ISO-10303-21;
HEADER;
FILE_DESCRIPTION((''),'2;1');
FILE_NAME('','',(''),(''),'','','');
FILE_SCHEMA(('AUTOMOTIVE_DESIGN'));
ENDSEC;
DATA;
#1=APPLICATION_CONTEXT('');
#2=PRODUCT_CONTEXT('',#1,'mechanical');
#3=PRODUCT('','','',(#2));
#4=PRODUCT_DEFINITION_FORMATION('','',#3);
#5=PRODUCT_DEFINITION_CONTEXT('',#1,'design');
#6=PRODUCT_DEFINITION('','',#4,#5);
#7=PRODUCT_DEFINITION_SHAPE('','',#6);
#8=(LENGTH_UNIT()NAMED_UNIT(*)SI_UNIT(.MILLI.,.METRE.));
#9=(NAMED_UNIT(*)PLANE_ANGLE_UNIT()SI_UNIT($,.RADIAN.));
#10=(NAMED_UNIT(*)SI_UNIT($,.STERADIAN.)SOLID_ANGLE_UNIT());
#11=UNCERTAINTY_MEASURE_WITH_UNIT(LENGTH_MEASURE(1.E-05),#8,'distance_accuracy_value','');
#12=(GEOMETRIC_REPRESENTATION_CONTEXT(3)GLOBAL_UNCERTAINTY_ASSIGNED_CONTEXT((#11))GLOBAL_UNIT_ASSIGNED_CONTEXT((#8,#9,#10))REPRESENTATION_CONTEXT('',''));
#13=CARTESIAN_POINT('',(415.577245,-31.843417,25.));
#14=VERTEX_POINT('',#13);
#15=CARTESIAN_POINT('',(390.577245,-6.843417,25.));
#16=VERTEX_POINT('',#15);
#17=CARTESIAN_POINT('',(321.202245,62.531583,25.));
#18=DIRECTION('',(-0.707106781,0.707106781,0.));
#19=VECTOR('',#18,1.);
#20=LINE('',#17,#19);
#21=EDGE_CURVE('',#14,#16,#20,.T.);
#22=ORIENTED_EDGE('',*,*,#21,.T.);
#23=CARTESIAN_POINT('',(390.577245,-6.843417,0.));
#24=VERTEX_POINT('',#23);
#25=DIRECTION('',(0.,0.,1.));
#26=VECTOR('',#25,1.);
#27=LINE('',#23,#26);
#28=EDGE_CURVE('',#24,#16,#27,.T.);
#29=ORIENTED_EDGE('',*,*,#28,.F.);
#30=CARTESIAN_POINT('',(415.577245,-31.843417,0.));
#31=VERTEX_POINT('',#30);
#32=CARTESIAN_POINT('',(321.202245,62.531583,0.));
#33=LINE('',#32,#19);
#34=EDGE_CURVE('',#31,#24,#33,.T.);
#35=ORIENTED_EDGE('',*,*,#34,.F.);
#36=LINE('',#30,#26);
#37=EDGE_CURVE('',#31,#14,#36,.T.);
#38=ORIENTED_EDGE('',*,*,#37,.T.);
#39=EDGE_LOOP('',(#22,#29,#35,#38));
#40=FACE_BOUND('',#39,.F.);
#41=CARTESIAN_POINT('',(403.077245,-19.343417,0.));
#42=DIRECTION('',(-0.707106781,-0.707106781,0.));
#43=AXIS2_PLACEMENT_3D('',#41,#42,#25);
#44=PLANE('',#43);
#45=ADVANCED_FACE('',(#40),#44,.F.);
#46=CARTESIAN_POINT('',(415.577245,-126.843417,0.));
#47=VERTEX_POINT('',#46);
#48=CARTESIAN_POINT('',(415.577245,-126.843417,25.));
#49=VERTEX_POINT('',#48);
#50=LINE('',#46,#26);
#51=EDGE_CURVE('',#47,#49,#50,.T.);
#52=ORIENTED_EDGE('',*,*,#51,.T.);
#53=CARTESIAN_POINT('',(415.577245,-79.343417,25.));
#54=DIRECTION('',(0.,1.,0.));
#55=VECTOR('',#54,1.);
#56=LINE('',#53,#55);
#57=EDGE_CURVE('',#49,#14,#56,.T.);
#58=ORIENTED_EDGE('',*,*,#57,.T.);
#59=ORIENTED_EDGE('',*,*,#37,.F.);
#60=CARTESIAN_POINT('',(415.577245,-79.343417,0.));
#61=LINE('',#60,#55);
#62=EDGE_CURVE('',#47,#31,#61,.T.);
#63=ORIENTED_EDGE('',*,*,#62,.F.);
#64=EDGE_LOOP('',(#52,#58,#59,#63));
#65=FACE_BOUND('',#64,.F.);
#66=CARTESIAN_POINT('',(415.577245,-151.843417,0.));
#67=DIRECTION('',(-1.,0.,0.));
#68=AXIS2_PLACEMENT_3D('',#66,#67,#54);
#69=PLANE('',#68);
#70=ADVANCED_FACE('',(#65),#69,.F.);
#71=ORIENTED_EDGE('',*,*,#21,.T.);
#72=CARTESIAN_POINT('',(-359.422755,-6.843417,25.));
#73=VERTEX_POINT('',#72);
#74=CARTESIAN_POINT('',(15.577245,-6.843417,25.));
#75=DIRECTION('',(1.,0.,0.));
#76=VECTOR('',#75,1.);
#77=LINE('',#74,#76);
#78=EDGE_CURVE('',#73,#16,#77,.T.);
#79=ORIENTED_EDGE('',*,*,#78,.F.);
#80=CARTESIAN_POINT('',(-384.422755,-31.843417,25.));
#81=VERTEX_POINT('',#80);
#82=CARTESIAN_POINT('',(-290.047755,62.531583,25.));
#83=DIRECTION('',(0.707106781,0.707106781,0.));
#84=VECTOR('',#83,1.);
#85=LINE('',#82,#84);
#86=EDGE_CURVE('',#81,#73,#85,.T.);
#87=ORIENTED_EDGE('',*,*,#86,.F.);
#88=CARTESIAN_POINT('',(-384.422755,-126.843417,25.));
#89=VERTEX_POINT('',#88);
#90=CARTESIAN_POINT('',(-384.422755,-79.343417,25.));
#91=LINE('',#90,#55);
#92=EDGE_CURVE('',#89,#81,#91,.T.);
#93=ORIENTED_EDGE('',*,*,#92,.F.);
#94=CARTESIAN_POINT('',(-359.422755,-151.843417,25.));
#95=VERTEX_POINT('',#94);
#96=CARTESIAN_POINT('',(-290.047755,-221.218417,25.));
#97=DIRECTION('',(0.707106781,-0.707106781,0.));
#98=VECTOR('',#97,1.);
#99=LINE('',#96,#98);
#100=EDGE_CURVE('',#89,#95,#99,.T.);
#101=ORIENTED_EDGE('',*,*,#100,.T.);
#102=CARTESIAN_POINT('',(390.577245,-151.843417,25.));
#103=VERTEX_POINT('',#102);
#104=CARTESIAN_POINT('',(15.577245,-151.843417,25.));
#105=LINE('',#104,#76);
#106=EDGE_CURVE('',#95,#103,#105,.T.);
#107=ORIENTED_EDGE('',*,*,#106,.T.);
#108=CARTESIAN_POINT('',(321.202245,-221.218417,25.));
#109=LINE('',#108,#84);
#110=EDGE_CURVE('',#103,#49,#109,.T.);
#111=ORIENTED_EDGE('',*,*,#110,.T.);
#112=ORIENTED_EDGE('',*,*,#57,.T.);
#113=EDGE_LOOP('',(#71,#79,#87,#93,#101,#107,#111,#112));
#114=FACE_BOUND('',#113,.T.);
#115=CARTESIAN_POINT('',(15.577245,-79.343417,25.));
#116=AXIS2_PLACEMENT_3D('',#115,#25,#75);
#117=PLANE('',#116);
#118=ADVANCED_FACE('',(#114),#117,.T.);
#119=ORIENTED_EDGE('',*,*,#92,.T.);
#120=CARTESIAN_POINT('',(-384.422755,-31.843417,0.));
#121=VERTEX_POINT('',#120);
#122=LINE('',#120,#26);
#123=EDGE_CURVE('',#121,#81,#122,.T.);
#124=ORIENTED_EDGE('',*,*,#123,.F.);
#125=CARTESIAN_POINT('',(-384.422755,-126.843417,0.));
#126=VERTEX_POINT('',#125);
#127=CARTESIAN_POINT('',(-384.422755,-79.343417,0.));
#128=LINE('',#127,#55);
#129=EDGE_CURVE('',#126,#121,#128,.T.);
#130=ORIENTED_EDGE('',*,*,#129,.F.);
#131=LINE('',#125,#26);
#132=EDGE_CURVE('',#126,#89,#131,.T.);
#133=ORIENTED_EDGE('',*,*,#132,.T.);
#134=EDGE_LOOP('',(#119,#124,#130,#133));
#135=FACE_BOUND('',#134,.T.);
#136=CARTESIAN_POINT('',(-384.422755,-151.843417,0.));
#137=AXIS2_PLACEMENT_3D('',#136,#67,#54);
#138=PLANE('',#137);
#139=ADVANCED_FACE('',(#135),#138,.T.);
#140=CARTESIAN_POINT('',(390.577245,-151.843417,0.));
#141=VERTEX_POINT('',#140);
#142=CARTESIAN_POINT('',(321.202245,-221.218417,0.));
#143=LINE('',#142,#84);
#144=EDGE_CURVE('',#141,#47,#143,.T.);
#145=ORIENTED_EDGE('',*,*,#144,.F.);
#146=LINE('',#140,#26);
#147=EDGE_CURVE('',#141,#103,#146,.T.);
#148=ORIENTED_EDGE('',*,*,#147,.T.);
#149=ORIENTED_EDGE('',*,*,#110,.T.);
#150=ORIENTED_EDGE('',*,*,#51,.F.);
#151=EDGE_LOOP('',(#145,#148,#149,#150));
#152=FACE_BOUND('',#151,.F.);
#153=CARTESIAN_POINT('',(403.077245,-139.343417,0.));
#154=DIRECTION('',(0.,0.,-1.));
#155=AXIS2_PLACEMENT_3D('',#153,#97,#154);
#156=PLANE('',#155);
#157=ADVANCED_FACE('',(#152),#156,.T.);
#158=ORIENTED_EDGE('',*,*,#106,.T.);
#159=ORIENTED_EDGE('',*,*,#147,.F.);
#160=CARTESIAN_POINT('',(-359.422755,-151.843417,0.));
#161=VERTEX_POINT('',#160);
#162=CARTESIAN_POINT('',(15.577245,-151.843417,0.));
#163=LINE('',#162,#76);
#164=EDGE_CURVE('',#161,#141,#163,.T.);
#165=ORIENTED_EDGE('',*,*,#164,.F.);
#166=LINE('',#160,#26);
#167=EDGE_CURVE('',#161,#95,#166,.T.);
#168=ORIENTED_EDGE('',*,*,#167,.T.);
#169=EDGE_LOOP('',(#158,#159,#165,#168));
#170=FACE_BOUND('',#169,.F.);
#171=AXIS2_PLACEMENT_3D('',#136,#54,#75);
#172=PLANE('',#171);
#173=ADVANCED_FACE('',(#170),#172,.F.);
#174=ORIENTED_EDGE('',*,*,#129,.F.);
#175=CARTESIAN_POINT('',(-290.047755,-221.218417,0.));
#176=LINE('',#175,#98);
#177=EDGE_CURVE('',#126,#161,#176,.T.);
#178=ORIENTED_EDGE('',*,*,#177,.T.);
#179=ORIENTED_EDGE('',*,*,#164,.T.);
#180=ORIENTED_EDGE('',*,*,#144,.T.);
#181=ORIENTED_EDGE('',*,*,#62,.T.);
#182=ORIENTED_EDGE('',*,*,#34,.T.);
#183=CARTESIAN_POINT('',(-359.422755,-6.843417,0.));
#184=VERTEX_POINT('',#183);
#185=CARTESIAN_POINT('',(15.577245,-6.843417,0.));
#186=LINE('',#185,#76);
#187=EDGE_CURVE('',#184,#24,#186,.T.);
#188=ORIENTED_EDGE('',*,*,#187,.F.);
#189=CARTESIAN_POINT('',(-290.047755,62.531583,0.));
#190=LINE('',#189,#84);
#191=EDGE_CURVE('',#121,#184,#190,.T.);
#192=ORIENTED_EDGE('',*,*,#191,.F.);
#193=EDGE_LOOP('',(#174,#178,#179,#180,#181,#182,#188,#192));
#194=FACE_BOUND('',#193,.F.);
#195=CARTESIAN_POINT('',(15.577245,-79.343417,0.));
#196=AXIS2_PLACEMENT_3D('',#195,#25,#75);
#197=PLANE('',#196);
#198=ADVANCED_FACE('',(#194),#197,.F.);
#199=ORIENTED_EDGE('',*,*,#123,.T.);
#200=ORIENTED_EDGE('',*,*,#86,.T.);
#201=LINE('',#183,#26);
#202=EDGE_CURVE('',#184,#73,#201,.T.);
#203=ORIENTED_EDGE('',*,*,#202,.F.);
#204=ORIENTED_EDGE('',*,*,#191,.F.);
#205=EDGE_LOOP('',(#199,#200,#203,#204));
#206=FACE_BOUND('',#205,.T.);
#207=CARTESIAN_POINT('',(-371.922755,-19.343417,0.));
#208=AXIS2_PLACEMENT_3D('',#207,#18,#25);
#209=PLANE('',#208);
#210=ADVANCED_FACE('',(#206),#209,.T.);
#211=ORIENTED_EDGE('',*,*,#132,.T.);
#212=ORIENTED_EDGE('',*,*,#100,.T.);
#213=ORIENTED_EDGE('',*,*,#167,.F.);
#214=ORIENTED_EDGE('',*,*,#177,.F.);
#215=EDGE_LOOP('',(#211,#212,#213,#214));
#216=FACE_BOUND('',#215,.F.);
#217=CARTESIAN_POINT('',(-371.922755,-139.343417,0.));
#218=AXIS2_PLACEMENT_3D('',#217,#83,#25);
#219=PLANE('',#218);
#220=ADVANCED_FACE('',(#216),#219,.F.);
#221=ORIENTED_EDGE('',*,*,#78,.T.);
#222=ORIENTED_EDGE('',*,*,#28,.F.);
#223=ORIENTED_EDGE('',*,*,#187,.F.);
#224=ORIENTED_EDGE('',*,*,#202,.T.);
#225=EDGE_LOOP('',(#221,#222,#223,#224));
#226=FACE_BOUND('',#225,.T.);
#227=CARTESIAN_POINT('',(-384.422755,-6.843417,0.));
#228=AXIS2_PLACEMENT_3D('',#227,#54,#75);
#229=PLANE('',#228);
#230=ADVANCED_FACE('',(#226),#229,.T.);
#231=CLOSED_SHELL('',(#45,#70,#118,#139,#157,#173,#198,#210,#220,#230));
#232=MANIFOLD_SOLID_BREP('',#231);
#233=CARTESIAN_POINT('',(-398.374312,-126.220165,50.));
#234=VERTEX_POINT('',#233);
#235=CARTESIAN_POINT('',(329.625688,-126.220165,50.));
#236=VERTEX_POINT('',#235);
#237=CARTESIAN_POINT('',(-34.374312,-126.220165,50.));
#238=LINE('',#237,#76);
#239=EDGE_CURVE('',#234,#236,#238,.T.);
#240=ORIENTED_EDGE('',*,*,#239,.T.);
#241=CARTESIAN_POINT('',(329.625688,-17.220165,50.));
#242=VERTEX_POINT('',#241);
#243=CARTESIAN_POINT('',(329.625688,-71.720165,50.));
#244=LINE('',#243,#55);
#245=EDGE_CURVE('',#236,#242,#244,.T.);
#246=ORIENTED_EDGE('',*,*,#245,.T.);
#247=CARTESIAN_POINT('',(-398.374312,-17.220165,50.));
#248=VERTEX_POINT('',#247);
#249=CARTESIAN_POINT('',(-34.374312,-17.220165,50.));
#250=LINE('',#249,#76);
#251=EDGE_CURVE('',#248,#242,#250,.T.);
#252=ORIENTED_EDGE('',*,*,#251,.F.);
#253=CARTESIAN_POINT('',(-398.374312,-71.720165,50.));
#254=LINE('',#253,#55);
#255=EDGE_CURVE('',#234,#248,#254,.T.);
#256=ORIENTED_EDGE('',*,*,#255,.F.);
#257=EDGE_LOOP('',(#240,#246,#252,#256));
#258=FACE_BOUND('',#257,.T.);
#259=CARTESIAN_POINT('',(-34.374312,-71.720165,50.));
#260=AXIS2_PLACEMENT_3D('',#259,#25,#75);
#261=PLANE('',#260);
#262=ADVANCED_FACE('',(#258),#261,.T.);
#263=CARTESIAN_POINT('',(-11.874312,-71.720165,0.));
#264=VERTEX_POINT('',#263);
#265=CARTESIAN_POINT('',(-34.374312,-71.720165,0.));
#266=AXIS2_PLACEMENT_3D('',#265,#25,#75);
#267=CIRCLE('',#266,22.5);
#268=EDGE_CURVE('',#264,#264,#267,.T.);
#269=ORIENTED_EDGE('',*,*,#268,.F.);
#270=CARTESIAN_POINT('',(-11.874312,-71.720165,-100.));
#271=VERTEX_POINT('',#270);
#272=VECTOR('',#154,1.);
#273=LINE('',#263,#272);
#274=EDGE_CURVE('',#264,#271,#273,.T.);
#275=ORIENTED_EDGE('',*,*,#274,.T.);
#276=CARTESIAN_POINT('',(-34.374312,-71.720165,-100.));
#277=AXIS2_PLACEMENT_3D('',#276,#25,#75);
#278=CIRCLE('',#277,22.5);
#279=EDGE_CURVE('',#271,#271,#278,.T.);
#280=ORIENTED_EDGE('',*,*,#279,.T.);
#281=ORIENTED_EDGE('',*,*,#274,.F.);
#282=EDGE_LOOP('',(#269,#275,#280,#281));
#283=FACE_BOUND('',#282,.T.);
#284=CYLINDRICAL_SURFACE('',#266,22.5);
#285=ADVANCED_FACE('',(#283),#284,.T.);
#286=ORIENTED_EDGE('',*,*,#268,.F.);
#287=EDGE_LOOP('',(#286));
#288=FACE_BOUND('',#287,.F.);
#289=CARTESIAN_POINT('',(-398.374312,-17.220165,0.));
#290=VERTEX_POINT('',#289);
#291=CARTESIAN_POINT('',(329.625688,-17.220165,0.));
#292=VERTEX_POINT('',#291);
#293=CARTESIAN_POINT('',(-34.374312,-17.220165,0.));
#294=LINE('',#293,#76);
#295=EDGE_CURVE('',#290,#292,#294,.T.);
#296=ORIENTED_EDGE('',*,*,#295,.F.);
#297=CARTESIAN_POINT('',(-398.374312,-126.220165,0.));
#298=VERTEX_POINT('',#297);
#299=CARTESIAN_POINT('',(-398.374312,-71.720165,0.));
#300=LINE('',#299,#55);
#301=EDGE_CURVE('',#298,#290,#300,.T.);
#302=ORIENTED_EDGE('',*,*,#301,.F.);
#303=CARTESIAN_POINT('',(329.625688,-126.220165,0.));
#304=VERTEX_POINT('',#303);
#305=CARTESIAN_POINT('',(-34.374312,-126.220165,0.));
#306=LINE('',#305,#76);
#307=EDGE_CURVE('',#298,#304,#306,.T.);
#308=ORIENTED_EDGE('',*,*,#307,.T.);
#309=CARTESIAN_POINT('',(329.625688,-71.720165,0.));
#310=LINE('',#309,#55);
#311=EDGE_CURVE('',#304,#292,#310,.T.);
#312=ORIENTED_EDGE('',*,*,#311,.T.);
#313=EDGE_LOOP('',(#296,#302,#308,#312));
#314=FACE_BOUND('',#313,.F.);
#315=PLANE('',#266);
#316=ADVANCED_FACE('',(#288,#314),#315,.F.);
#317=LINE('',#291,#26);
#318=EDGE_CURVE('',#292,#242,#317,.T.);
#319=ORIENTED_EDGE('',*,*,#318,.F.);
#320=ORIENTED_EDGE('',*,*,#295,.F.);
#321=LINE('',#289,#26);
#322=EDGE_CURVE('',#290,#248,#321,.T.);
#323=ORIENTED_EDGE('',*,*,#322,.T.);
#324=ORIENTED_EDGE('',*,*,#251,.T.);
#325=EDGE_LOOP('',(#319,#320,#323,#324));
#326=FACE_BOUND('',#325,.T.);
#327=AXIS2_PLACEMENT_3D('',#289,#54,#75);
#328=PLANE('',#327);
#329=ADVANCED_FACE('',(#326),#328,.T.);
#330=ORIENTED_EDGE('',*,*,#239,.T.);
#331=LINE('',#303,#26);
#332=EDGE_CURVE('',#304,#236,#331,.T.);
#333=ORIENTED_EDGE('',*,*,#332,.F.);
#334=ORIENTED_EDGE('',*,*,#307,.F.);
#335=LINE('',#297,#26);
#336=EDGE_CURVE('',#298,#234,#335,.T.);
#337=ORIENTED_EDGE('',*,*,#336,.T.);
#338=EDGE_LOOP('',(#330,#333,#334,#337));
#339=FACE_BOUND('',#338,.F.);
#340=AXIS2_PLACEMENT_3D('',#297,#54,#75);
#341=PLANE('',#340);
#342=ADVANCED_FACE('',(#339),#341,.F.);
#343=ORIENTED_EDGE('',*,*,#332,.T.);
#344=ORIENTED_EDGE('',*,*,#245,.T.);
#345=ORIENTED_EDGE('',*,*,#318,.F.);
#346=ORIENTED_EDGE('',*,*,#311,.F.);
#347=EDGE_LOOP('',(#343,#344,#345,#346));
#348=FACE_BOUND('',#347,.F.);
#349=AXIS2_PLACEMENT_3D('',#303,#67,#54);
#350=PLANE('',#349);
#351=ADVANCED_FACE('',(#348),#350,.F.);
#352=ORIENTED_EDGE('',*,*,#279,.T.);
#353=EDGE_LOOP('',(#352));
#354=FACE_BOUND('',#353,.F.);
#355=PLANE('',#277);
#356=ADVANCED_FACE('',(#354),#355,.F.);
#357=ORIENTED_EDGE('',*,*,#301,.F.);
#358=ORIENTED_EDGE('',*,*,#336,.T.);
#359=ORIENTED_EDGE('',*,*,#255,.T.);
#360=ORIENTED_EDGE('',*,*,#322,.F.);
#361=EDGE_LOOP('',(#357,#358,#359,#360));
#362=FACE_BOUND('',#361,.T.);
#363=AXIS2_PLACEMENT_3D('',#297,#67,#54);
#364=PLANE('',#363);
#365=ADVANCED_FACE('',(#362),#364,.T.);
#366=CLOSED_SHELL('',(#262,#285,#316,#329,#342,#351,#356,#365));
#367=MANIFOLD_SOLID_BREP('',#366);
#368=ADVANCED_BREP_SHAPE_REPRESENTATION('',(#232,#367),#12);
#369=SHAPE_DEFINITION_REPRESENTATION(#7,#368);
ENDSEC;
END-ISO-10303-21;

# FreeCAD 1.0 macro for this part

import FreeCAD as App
import Part
import Sketcher
from FreeCAD import Vector
Q = App.Units.Quantity


def edges_at(feature, points):
    """Names of the edges that pass closest to the given points."""
    edges = feature.Shape.Edges
    near = lambda p: min(range(len(edges)), key=lambda i: edges[i].distToShape(Part.Vertex(*p))[0])
    return sorted({f"Edge{near(p) + 1}" for p in points})


def add_polygon(sketch, points):
    """Adds a closed chain of lines whose ends are joined by coincident constraints."""
    first, n = sketch.GeometryCount, len(points)
    for a, b in zip(points, points[1:] + points[:1]):
        sketch.addGeometry(Part.LineSegment(App.Vector(*a, 0), App.Vector(*b, 0)), False)
    for i in range(n):
        sketch.addConstraint(Sketcher.Constraint("Coincident", first + i, 2, first + (i + 1) % n, 1))

doc = App.newDocument("Part")
body = doc.addObject("PartDesign::Body", "Body")

# Sketch on XY plane
sketch1 = doc.addObject("Sketcher::SketchObject", "Sketch")
body.addObject(sketch1)
sketch1.AttachmentSupport = (doc.XY_Plane, [""])
sketch1.MapMode = "FlatFace"
add_polygon(sketch1, [(-398, -17), (-398, -126), (330, -126), (330, -17)])  # lines 0-3
sketch1.addConstraint([
    Sketcher.Constraint("Vertical", 0),
    Sketcher.Constraint("Horizontal", 1),
    Sketcher.Constraint("Vertical", 2),
    Sketcher.Constraint("Horizontal", 3),
    Sketcher.Constraint("DistanceX", 1, 1, 1, 2, Q("728 mm")),
    Sketcher.Constraint("DistanceY", 0, 2, 0, 1, Q("109 mm")),
    Sketcher.Constraint("DistanceX", 0, 2, -1, 1, Q("398.374312 mm")),
    Sketcher.Constraint("DistanceY", 0, 2, -1, 1, Q("126.220165 mm")),
])
pad1 = doc.addObject("PartDesign::Pad", "Pad")
body.addObject(pad1)
pad1.Profile = sketch1
pad1.Length = 50

# Sketch on XY plane
sketch2 = doc.addObject("Sketcher::SketchObject", "Sketch001")
body.addObject(sketch2)
sketch2.AttachmentSupport = (doc.XY_Plane, [""])
sketch2.MapMode = "FlatFace"
sketch2.addGeometry(Part.Circle(Vector(-34, -72, 0), Vector(0, 0, 1), 22), False)
sketch2.addConstraint([
    Sketcher.Constraint("Diameter", 0, Q("45 mm")),
    Sketcher.Constraint("DistanceX", 0, 3, -1, 1, Q("34.374312 mm")),
    Sketcher.Constraint("DistanceY", 0, 3, -1, 1, Q("71.720165 mm")),
])
pad2 = doc.addObject("PartDesign::Pad", "Pad001")
body.addObject(pad2)
pad2.Profile = sketch2
pad2.Length = 100
pad2.Reversed = True
body2 = doc.addObject("PartDesign::Body", "Body001")

# Sketch on XY plane
sketch3 = doc.addObject("Sketcher::SketchObject", "Sketch002")
body2.addObject(sketch3)
sketch3.AttachmentSupport = (doc.getObject("XY_Plane001"), [""])
sketch3.MapMode = "FlatFace"
add_polygon(sketch3, [(-384, -7), (-384, -152), (416, -152), (416, -7)])  # lines 0-3
sketch3.addConstraint([
    Sketcher.Constraint("Vertical", 0),
    Sketcher.Constraint("Horizontal", 1),
    Sketcher.Constraint("Vertical", 2),
    Sketcher.Constraint("Horizontal", 3),
    Sketcher.Constraint("DistanceX", 1, 1, 1, 2, Q("800 mm")),
    Sketcher.Constraint("DistanceY", 0, 2, 0, 1, Q("145 mm")),
    Sketcher.Constraint("DistanceX", 0, 2, -1, 1, Q("384.422755 mm")),
    Sketcher.Constraint("DistanceY", 0, 2, -1, 1, Q("151.843417 mm")),
])
pad3 = doc.addObject("PartDesign::Pad", "Pad002")
body2.addObject(pad3)
pad3.Profile = sketch3
pad3.Length = 25
doc.recompute()

chamfer = doc.addObject("PartDesign::Chamfer", "Chamfer")
body2.addObject(chamfer)
chamfer.Base = (pad3, edges_at(pad3, [
    (415.577, -6.843, 12.5),
    (415.577, -151.843, 12.5),
    (-384.423, -6.843, 12.5),
    (-384.423, -151.843, 12.5),
]))
chamfer.Size = 25

doc.recompute()
